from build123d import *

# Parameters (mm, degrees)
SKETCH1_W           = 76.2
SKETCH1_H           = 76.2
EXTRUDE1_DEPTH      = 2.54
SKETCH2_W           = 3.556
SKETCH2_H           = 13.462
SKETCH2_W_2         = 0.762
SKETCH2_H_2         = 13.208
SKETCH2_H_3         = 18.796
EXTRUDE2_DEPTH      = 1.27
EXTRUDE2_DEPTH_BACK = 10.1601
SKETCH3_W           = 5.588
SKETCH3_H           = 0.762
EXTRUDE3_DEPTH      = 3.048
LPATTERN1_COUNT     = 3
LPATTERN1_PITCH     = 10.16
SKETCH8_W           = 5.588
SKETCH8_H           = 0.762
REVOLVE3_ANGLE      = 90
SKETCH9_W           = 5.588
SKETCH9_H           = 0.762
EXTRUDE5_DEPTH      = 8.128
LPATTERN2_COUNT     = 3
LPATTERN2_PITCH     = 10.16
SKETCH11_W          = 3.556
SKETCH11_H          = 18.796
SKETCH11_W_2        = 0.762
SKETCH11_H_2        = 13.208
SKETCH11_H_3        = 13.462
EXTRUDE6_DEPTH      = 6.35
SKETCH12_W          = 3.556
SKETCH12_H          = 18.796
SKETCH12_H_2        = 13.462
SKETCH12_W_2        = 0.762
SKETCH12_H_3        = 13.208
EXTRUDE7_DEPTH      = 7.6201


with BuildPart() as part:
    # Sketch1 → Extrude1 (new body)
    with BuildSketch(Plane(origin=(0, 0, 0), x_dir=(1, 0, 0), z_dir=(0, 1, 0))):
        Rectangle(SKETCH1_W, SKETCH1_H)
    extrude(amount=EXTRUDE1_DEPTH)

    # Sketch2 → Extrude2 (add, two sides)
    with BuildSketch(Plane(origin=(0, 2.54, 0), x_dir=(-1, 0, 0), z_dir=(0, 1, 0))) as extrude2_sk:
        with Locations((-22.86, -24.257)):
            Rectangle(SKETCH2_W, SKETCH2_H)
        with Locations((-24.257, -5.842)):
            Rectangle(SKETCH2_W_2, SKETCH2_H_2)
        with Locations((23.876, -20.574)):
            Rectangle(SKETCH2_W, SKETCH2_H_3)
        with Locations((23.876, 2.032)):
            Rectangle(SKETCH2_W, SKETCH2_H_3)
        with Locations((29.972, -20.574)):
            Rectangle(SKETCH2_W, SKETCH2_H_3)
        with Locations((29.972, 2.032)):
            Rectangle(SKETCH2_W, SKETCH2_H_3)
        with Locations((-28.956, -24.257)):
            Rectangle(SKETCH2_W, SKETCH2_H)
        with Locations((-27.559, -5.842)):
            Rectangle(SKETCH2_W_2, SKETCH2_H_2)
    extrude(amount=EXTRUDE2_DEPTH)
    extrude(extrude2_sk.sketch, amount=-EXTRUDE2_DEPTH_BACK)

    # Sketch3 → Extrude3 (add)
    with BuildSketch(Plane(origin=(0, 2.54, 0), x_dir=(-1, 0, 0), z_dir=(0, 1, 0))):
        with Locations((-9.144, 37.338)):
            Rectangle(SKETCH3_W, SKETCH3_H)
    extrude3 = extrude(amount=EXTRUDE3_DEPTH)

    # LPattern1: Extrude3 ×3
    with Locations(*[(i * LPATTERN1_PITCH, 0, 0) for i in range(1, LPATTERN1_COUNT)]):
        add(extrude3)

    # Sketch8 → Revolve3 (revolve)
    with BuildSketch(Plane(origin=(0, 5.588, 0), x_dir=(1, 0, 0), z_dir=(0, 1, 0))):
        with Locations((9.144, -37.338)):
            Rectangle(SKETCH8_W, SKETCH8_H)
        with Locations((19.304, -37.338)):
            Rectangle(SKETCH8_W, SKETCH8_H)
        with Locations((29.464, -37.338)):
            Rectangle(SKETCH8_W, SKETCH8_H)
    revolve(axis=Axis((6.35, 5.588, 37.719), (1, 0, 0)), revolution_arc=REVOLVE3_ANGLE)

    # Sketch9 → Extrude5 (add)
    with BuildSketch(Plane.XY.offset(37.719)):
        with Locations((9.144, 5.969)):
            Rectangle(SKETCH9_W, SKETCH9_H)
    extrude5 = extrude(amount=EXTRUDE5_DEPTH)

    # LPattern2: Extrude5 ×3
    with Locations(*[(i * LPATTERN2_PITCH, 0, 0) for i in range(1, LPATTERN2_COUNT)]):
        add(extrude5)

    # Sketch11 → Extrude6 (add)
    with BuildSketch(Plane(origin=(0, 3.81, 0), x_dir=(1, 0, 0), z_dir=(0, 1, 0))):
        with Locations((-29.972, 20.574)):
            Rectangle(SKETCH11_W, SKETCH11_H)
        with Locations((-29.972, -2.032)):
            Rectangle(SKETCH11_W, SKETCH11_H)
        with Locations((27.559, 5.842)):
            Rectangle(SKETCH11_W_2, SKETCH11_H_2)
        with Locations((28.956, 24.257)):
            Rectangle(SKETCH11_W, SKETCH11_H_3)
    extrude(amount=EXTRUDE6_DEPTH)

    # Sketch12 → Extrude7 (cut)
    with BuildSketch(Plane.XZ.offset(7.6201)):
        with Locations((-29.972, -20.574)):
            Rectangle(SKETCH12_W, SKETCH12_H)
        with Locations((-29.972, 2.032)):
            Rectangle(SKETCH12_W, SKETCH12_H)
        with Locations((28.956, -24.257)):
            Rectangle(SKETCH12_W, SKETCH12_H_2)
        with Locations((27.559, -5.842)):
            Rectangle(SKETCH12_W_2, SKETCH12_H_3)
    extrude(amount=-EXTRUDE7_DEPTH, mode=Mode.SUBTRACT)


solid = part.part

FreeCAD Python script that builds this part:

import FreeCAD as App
import Part
import Sketcher

V = App.Vector
Q = App.Units.Quantity


def add_polygon(sketch, points):
    """Adds a closed chain of lines whose ends are joined by coincident constraints."""
    first, n = sketch.GeometryCount, len(points)
    for a, b in zip(points, points[1:] + points[:1]):
        sketch.addGeometry(Part.LineSegment(App.Vector(*a, 0), App.Vector(*b, 0)), False)
    for i in range(n):
        sketch.addConstraint(Sketcher.Constraint("Coincident", first + i, 2, first + (i + 1) % n, 1))

doc = App.newDocument("Part")
body = doc.addObject("PartDesign::Body", "Body")

# Sketch on XZ plane
sketch1 = body.newObject("Sketcher::SketchObject", "Sketch")
sketch1.AttachmentSupport = (doc.getObject("XZ_Plane"), [""])
sketch1.MapMode = "FlatFace"
add_polygon(sketch1, [(-38, -38), (-38, 38), (38, 38), (38, -38)])  # lines 0-3
sketch1.addConstraint([
    Sketcher.Constraint("Vertical", 0),
    Sketcher.Constraint("Horizontal", 1),
    Sketcher.Constraint("Vertical", 2),
    Sketcher.Constraint("Horizontal", 3),
    Sketcher.Constraint("Symmetric", 0, 2, 2, 2, -1, 1),
    Sketcher.Constraint("Equal", 3, 0),
    Sketcher.Constraint("DistanceX", 1, 1, 1, 2, Q("3 in")),
])
pad1 = body.newObject("PartDesign::Pad", "Pad")
pad1.Profile = sketch1
pad1.Length = Q("0.1 in")
pad1.Reversed = True

# Sketch on XZ plane
sketch2 = body.newObject("Sketcher::SketchObject", "Sketch001")
sketch2.AttachmentSupport = (doc.getObject("XZ_Plane"), [""])
sketch2.MapMode = "FlatFace"
sketch2.AttachmentOffset = App.Placement(V(0, 0, -0.1 * 25.4), App.Rotation())
add_polygon(sketch2, [(24.6, -17.5), (24.6, -31), (21.1, -31), (21.1, -17.5)])  # lines 0-3
add_polygon(sketch2, [(24.6, 0.8), (24.6, -12.4), (23.9, -12.4), (23.9, 0.8)])  # lines 4-7
add_polygon(sketch2, [(-22.1, -11.2), (-22.1, -30), (-25.7, -30), (-25.7, -11.2)])  # lines 8-11
add_polygon(sketch2, [(-22.1, 11.4), (-22.1, -7.4), (-25.7, -7.4), (-25.7, 11.4)])  # lines 12-15
add_polygon(sketch2, [(-28.2, -11.2), (-28.2, -30), (-31.8, -30), (-31.8, -11.2)])  # lines 16-19
add_polygon(sketch2, [(-28.2, 11.4), (-28.2, -7.4), (-31.8, -7.4), (-31.8, 11.4)])  # lines 20-23
add_polygon(sketch2, [(30.7, -17.5), (30.7, -31), (27.2, -31), (27.2, -17.5)])  # lines 24-27
add_polygon(sketch2, [(27.9, 0.8), (27.9, -12.4), (27.2, -12.4), (27.2, 0.8)])  # lines 28-31
sketch2.addConstraint([
    Sketcher.Constraint("Vertical", 0),
    Sketcher.Constraint("Horizontal", 1),
    Sketcher.Constraint("Vertical", 2),
    Sketcher.Constraint("Horizontal", 3),
    Sketcher.Constraint("Vertical", 4),
    Sketcher.Constraint("Horizontal", 5),
    Sketcher.Constraint("Vertical", 6),
    Sketcher.Constraint("Horizontal", 7),
    Sketcher.Constraint("Vertical", 8),
    Sketcher.Constraint("Horizontal", 9),
    Sketcher.Constraint("Vertical", 10),
    Sketcher.Constraint("Horizontal", 11),
    Sketcher.Constraint("Vertical", 12),
    Sketcher.Constraint("Horizontal", 13),
    Sketcher.Constraint("Vertical", 14),
    Sketcher.Constraint("Horizontal", 15),
    Sketcher.Constraint("Vertical", 16),
    Sketcher.Constraint("Horizontal", 17),
    Sketcher.Constraint("Vertical", 18),
    Sketcher.Constraint("Horizontal", 19),
    Sketcher.Constraint("Vertical", 20),
    Sketcher.Constraint("Horizontal", 21),
    Sketcher.Constraint("Vertical", 22),
    Sketcher.Constraint("Horizontal", 23),
    Sketcher.Constraint("Vertical", 24),
    Sketcher.Constraint("Horizontal", 25),
    Sketcher.Constraint("Vertical", 26),
    Sketcher.Constraint("Horizontal", 27),
    Sketcher.Constraint("Vertical", 28),
    Sketcher.Constraint("Horizontal", 29),
    Sketcher.Constraint("Vertical", 30),
    Sketcher.Constraint("Horizontal", 31),
    Sketcher.Constraint("Horizontal", 9, 2, 16, 2),
    Sketcher.Constraint("Horizontal", 11, 2, 18, 2),
    Sketcher.Constraint("Horizontal", 13, 2, 20, 2),
    Sketcher.Constraint("Horizontal", 15, 2, 22, 2),
    Sketcher.Constraint("Horizontal", 1, 2, 24, 2),
    Sketcher.Constraint("Horizontal", 3, 2, 26, 2),
    Sketcher.Constraint("Horizontal", 5, 2, 28, 2),
    Sketcher.Constraint("Horizontal", 7, 2, 30, 2),
    Sketcher.Constraint("Vertical", 3, 2, 4, 2),
    Sketcher.Constraint("Vertical", 11, 2, 12, 2),
    Sketcher.Constraint("Vertical", 10, 2, 13, 2),
    Sketcher.Constraint("Vertical", 19, 2, 20, 2),
    Sketcher.Constraint("Vertical", 18, 2, 21, 2),
    Sketcher.Constraint("Vertical", 26, 2, 29, 2),
    Sketcher.Constraint("Equal", 3, 9),
    Sketcher.Constraint("Equal", 15, 17),
    Sketcher.Constraint("Equal", 23, 25),
    Sketcher.Constraint("Equal", 7, 29),
    Sketcher.Constraint("Equal", 10, 12),
    Sketcher.Constraint("DistanceX", 1, 2, 1, 1, Q("0.14 in")),
    Sketcher.Constraint("DistanceX", 5, 2, 5, 1, Q("0.03 in")),
    Sketcher.Constraint("DistanceY", 0, 2, 0, 1, Q("0.53 in")),
    Sketcher.Constraint("DistanceY", 4, 2, 4, 1, Q("0.52 in")),
    Sketcher.Constraint("DistanceY", 8, 2, 8, 1, Q("0.74 in")),
    Sketcher.Constraint("DistanceX", -1, 1, 28, 2, Q("1.1 in")),
    Sketcher.Constraint("DistanceY", 3, 2, 4, 2, Q("0.2 in")),
    Sketcher.Constraint("DistanceX", 8, 2, 1, 2, Q("1.7 in")),
    Sketcher.Constraint("DistanceY", 2, 2, 12, 2, Q("0.4 in")),
    Sketcher.Constraint("DistanceX", 16, 2, 9, 2, Q("0.1 in")),
    Sketcher.Constraint("DistanceX", 0, 2, 25, 2, Q("0.1 in")),
    Sketcher.Constraint("DistanceY", 0, 2, -1, 1, Q("1.22 in")),
    Sketcher.Constraint("DistanceY", 8, 2, -1, 1, Q("1.18 in")),
])
pad2 = body.newObject("PartDesign::Pad", "Pad001")
pad2.Profile = sketch2
pad2.Type = "TwoLengths"
pad2.Length = Q("0.05 in")
pad2.Length2 = 10.1601
pad2.Reversed = True

# Sketch on XZ plane
sketch3 = body.newObject("Sketcher::SketchObject", "Sketch002")
sketch3.AttachmentSupport = (doc.getObject("XZ_Plane"), [""])
sketch3.MapMode = "FlatFace"
sketch3.AttachmentOffset = App.Placement(V(0, 0, -0.1 * 25.4), App.Rotation())
add_polygon(sketch3, [(11.9, 37.7), (11.9, 37), (6.3, 37), (6.3, 37.7)])  # lines 0-3
sketch3.addConstraint([
    Sketcher.Constraint("Vertical", 0),
    Sketcher.Constraint("Horizontal", 1),
    Sketcher.Constraint("Vertical", 2),
    Sketcher.Constraint("Horizontal", 3),
    Sketcher.Constraint("DistanceX", 1, 2, 1, 1, Q("0.22 in")),
    Sketcher.Constraint("DistanceY", 0, 2, 0, 1, Q("0.03 in")),
    Sketcher.Constraint("DistanceX", -1, 1, 0, 2, Q("0.47 in")),
    Sketcher.Constraint("DistanceY", -1, 1, 0, 2, Q("1.455 in")),
])
pad3 = body.newObject("PartDesign::Pad", "Pad002")
pad3.Profile = sketch3
pad3.Length = Q("0.12 in")
pad3.Reversed = True
doc.recompute()

linearpattern = body.newObject("PartDesign::LinearPattern", "LinearPattern")
linearpattern.Originals = [pad3]
linearpattern.Direction = (doc.getObject("X_Axis"), [""])
linearpattern.Mode = "offset"
linearpattern.Offset = Q("0.4 in")
linearpattern.Occurrences = 3
body.Tip = linearpattern

# Sketch on XZ plane
sketch4 = body.newObject("Sketcher::SketchObject", "Sketch003")
sketch4.AttachmentSupport = (doc.getObject("XZ_Plane"), [""])
sketch4.MapMode = "FlatFace"
sketch4.AttachmentOffset = App.Placement(V(0, 0, -0.22 * 25.4), App.Rotation())
add_polygon(sketch4, [(6.3, 37), (6.3, 37.7), (11.9, 37.7), (11.9, 37)])  # lines 0-3
add_polygon(sketch4, [(16.5, 37), (16.5, 37.7), (22.1, 37.7), (22.1, 37)])  # lines 4-7
add_polygon(sketch4, [(26.7, 37), (26.7, 37.7), (32.3, 37.7), (32.3, 37)])  # lines 8-11
sketch4.addGeometry(Part.LineSegment(V(6.3, 37.7, 0), V(32.3, 37.7, 0)), True)  # axis
sketch4.addConstraint([
    Sketcher.Constraint("Vertical", 0),
    Sketcher.Constraint("Horizontal", 1),
    Sketcher.Constraint("Vertical", 2),
    Sketcher.Constraint("Horizontal", 3),
    Sketcher.Constraint("Vertical", 4),
    Sketcher.Constraint("Horizontal", 5),
    Sketcher.Constraint("Vertical", 6),
    Sketcher.Constraint("Horizontal", 7),
    Sketcher.Constraint("Vertical", 8),
    Sketcher.Constraint("Horizontal", 9),
    Sketcher.Constraint("Vertical", 10),
    Sketcher.Constraint("Horizontal", 11),
    Sketcher.Constraint("Horizontal", 12),
    Sketcher.Constraint("Coincident", 12, 1, 0, 2),
    Sketcher.Constraint("Coincident", 12, 2, 9, 2),
    Sketcher.Constraint("Horizontal", 1, 2, 4, 2),
    Sketcher.Constraint("Horizontal", 3, 2, 6, 2),
    Sketcher.Constraint("Horizontal", 7, 2, 10, 2),
    Sketcher.Constraint("Equal", 3, 5),
    Sketcher.Constraint("Equal", 7, 9),
    Sketcher.Constraint("DistanceX", 1, 1, 1, 2, Q("0.22 in")),
    Sketcher.Constraint("DistanceX", 12, 1, 12, 2, Q("1.02 in")),
    Sketcher.Constraint("DistanceY", 0, 1, 0, 2, Q("0.03 in")),
    Sketcher.Constraint("DistanceX", 0, 2, 4, 2, Q("0.4 in")),
    Sketcher.Constraint("DistanceX", -1, 1, 0, 2, Q("0.25 in")),
    Sketcher.Constraint("DistanceY", -1, 1, 0, 2, Q("1.485 in")),
])
revolution = body.newObject("PartDesign::Revolution", "Revolution")
revolution.Profile = sketch4
revolution.ReferenceAxis = (sketch4, ["Axis0"])
revolution.Angle = 90

# Sketch on XY plane
sketch5 = body.newObject("Sketcher::SketchObject", "Sketch004")
sketch5.AttachmentSupport = (doc.getObject("XY_Plane"), [""])
sketch5.MapMode = "FlatFace"
sketch5.AttachmentOffset = App.Placement(V(0, 0, 1.485 * 25.4), App.Rotation())
add_polygon(sketch5, [(6.3, 6.3), (6.3, 5.6), (11.9, 5.6), (11.9, 6.3)])  # lines 0-3
sketch5.addConstraint([
    Sketcher.Constraint("Vertical", 0),
    Sketcher.Constraint("Horizontal", 1),
    Sketcher.Constraint("Vertical", 2),
    Sketcher.Constraint("Horizontal", 3),
    Sketcher.Constraint("DistanceX", 1, 1, 1, 2, Q("0.22 in")),
    Sketcher.Constraint("DistanceY", 0, 2, 0, 1, Q("0.03 in")),
    Sketcher.Constraint("DistanceX", -1, 1, 0, 2, Q("0.25 in")),
    Sketcher.Constraint("DistanceY", -1, 1, 0, 2, Q("0.22 in")),
])
pad4 = body.newObject("PartDesign::Pad", "Pad003")
pad4.Profile = sketch5
pad4.Length = Q("0.32 in")
doc.recompute()

linearpattern2 = body.newObject("PartDesign::LinearPattern", "LinearPattern001")
linearpattern2.Originals = [pad4]
linearpattern2.Direction = (doc.getObject("X_Axis"), [""])
linearpattern2.Mode = "offset"
linearpattern2.Offset = Q("0.4 in")
linearpattern2.Occurrences = 3
body.Tip = linearpattern2

# Sketch on XZ plane
sketch6 = body.newObject("Sketcher::SketchObject", "Sketch005")
sketch6.AttachmentSupport = (doc.getObject("XZ_Plane"), [""])
sketch6.MapMode = "FlatFace"
sketch6.AttachmentOffset = App.Placement(V(0, 0, -0.15 * 25.4), App.Rotation())
add_polygon(sketch6, [(-31.8, -30), (-31.8, -11.2), (-28.2, -11.2), (-28.2, -30)])  # lines 0-3
add_polygon(sketch6, [(-31.8, -7.4), (-31.8, 11.4), (-28.2, 11.4), (-28.2, -7.4)])  # lines 4-7
add_polygon(sketch6, [(27.2, -12.4), (27.2, 0.8), (27.9, 0.8), (27.9, -12.4)])  # lines 8-11
add_polygon(sketch6, [(27.2, -31), (27.2, -17.5), (30.7, -17.5), (30.7, -31)])  # lines 12-15
sketch6.addConstraint([
    Sketcher.Constraint("Vertical", 0),
    Sketcher.Constraint("Horizontal", 1),
    Sketcher.Constraint("Vertical", 2),
    Sketcher.Constraint("Horizontal", 3),
    Sketcher.Constraint("Vertical", 4),
    Sketcher.Constraint("Horizontal", 5),
    Sketcher.Constraint("Vertical", 6),
    Sketcher.Constraint("Horizontal", 7),
    Sketcher.Constraint("Vertical", 8),
    Sketcher.Constraint("Horizontal", 9),
    Sketcher.Constraint("Vertical", 10),
    Sketcher.Constraint("Horizontal", 11),
    Sketcher.Constraint("Vertical", 12),
    Sketcher.Constraint("Horizontal", 13),
    Sketcher.Constraint("Vertical", 14),
    Sketcher.Constraint("Horizontal", 15),
    Sketcher.Constraint("Vertical", 3, 2, 4, 2),
    Sketcher.Constraint("Vertical", 2, 2, 5, 2),
    Sketcher.Constraint("Vertical", 11, 2, 12, 2),
    Sketcher.Constraint("Equal", 7, 13),
    Sketcher.Constraint("Equal", 2, 4),
    Sketcher.Constraint("DistanceX", 1, 1, 1, 2, Q("0.14 in")),
    Sketcher.Constraint("DistanceX", 9, 1, 9, 2, Q("0.03 in")),
    Sketcher.Constraint("DistanceY", 0, 1, 0, 2, Q("0.74 in")),
    Sketcher.Constraint("DistanceY", 8, 1, 8, 2, Q("0.52 in")),
    Sketcher.Constraint("DistanceY", 12, 1, 12, 2, Q("0.53 in")),
    Sketcher.Constraint("DistanceX", -1, 1, 9, 2, Q("1.1 in")),
    Sketcher.Constraint("DistanceY", 10, 2, 6, 2, Q("0.2 in")),
    Sketcher.Constraint("DistanceY", 12, 2, 11, 2, Q("0.2 in")),
    Sketcher.Constraint("DistanceX", 0, 2, -1, 1, Q("1.25 in")),
    Sketcher.Constraint("DistanceY", 0, 2, -1, 1, Q("0.44 in")),
    Sketcher.Constraint("DistanceY", -1, 1, 4, 2, Q("0.45 in")),
])
pad5 = body.newObject("PartDesign::Pad", "Pad004")
pad5.Profile = sketch6
pad5.Length = Q("0.25 in")
pad5.Reversed = True

# Sketch on XZ plane
sketch7 = body.newObject("Sketcher::SketchObject", "Sketch006")
sketch7.AttachmentSupport = (doc.getObject("XZ_Plane"), [""])
sketch7.MapMode = "FlatFace"
sketch7.AttachmentOffset = App.Placement(V(0, 0, 7.6201), App.Rotation())
add_polygon(sketch7, [(-31.8, -11.2), (-31.8, -30), (-28.2, -30), (-28.2, -11.2)])  # lines 0-3
add_polygon(sketch7, [(-31.8, 11.4), (-31.8, -7.4), (-28.2, -7.4), (-28.2, 11.4)])  # lines 4-7
add_polygon(sketch7, [(27.2, -17.5), (27.2, -31), (30.7, -31), (30.7, -17.5)])  # lines 8-11
add_polygon(sketch7, [(27.2, 0.8), (27.2, -12.4), (27.9, -12.4), (27.9, 0.8)])  # lines 12-15
sketch7.addConstraint([
    Sketcher.Constraint("Vertical", 0),
    Sketcher.Constraint("Horizontal", 1),
    Sketcher.Constraint("Vertical", 2),
    Sketcher.Constraint("Horizontal", 3),
    Sketcher.Constraint("Vertical", 4),
    Sketcher.Constraint("Horizontal", 5),
    Sketcher.Constraint("Vertical", 6),
    Sketcher.Constraint("Horizontal", 7),
    Sketcher.Constraint("Vertical", 8),
    Sketcher.Constraint("Horizontal", 9),
    Sketcher.Constraint("Vertical", 10),
    Sketcher.Constraint("Horizontal", 11),
    Sketcher.Constraint("Vertical", 12),
    Sketcher.Constraint("Horizontal", 13),
    Sketcher.Constraint("Vertical", 14),
    Sketcher.Constraint("Horizontal", 15),
    Sketcher.Constraint("Vertical", 3, 2, 4, 2),
    Sketcher.Constraint("Vertical", 2, 2, 5, 2),
    Sketcher.Constraint("Vertical", 11, 2, 12, 2),
    Sketcher.Constraint("Equal", 7, 9),
    Sketcher.Constraint("Equal", 2, 4),
    Sketcher.Constraint("DistanceX", 1, 1, 1, 2, Q("0.14 in")),
    Sketcher.Constraint("DistanceX", 13, 1, 13, 2, Q("0.03 in")),
    Sketcher.Constraint("DistanceY", 0, 2, 0, 1, Q("0.74 in")),
    Sketcher.Constraint("DistanceY", 8, 2, 8, 1, Q("0.53 in")),
    Sketcher.Constraint("DistanceY", 12, 2, 12, 1, Q("0.52 in")),
    Sketcher.Constraint("DistanceX", -1, 1, 13, 2, Q("1.1 in")),
    Sketcher.Constraint("DistanceY", 10, 2, 5, 2, Q("0.4 in")),
    Sketcher.Constraint("DistanceY", 11, 2, 12, 2, Q("0.2 in")),
    Sketcher.Constraint("DistanceX", 0, 2, -1, 1, Q("1.25 in")),
    Sketcher.Constraint("DistanceY", 0, 2, -1, 1, Q("1.18 in")),
    Sketcher.Constraint("DistanceY", 4, 2, -1, 1, Q("0.29 in")),
])
pocket1 = body.newObject("PartDesign::Pocket", "Pocket")
pocket1.Profile = sketch7
pocket1.Length = 7.6201

doc.recompute()
